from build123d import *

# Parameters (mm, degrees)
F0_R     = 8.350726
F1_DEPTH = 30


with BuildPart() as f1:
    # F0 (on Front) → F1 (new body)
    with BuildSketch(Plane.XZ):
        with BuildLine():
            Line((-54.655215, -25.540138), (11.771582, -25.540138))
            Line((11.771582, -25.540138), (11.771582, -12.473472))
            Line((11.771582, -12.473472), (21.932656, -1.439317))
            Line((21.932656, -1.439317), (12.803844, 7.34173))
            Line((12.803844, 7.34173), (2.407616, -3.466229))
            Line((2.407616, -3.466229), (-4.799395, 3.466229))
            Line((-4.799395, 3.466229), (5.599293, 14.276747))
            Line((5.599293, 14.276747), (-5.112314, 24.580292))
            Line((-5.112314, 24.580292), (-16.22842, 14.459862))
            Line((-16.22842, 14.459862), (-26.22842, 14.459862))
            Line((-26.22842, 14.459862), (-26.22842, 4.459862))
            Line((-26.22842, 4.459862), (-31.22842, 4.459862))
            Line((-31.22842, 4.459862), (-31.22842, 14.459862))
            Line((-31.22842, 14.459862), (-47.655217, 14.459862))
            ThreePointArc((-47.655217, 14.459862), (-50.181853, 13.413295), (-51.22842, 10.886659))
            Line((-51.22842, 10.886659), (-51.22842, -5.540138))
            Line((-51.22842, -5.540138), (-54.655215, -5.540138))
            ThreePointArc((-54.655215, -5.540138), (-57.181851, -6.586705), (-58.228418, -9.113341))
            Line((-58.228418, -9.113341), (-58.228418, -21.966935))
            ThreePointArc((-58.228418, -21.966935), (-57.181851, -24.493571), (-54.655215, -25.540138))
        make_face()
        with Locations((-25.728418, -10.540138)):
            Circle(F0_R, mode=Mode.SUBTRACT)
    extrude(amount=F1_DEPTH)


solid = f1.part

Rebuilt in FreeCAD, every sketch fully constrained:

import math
import FreeCAD as App
import Part
import Sketcher

doc = App.newDocument("Part")
body = doc.addObject("PartDesign::Body", "Body")

# Sketch on XZ plane
sketch1 = body.newObject("Sketcher::SketchObject", "Sketch")
sketch1.AttachmentSupport = (doc.getObject("XZ_Plane"), [""])
sketch1.MapMode = "FlatFace"
sketch1.addGeometry([
    Part.LineSegment(App.Vector(-54.655215, -25.540138, 0), App.Vector(11.771582, -25.540138, 0)),  # 0
    Part.LineSegment(App.Vector(11.771582, -25.540138, 0), App.Vector(11.771582, -12.473472, 0)),  # 1
    Part.LineSegment(App.Vector(11.771582, -12.473472, 0), App.Vector(21.932656, -1.439317, 0)),  # 2
    Part.LineSegment(App.Vector(21.932656, -1.439317, 0), App.Vector(12.803844, 7.34173, 0)),  # 3
    Part.LineSegment(App.Vector(12.803844, 7.34173, 0), App.Vector(2.407616, -3.466229, 0)),  # 4
    Part.LineSegment(App.Vector(2.407616, -3.466229, 0), App.Vector(-4.799395, 3.466229, 0)),  # 5
    Part.LineSegment(App.Vector(-4.799395, 3.466229, 0), App.Vector(5.599293, 14.276747, 0)),  # 6
    Part.LineSegment(App.Vector(5.599293, 14.276747, 0), App.Vector(-5.112314, 24.580292, 0)),  # 7
    Part.LineSegment(App.Vector(-5.112314, 24.580292, 0), App.Vector(-16.22842, 14.459862, 0)),  # 8
    Part.LineSegment(App.Vector(-16.22842, 14.459862, 0), App.Vector(-26.22842, 14.459862, 0)),  # 9
    Part.LineSegment(App.Vector(-26.22842, 14.459862, 0), App.Vector(-26.22842, 4.459862, 0)),  # 10
    Part.LineSegment(App.Vector(-26.22842, 4.459862, 0), App.Vector(-31.22842, 4.459862, 0)),  # 11
    Part.LineSegment(App.Vector(-31.22842, 4.459862, 0), App.Vector(-31.22842, 14.459862, 0)),  # 12
    Part.LineSegment(App.Vector(-31.22842, 14.459862, 0), App.Vector(-47.655217, 14.459862, 0)),  # 13
    Part.ArcOfCircle(Part.Circle(App.Vector(-47.655217, 10.886659, 0), App.Vector(0, 0, 1), 3.573203), math.radians(90.000004), math.radians(179.999996)),  # 14
    Part.LineSegment(App.Vector(-51.22842, 10.886659, 0), App.Vector(-51.22842, -5.540138, 0)),  # 15
    Part.LineSegment(App.Vector(-51.22842, -5.540138, 0), App.Vector(-54.655215, -5.540138, 0)),  # 16
    Part.ArcOfCircle(Part.Circle(App.Vector(-54.655215, -9.113341, 0), App.Vector(0, 0, 1), 3.573203), math.radians(90.000004), math.radians(179.999996)),  # 17
    Part.LineSegment(App.Vector(-58.228418, -9.113341, 0), App.Vector(-58.228418, -21.966935, 0)),  # 18
    Part.ArcOfCircle(Part.Circle(App.Vector(-54.655215, -21.966935, 0), App.Vector(0, 0, 1), 3.573203), math.radians(-179.999996), math.radians(-90.000004)),  # 19
    Part.Circle(App.Vector(-25.728418, -10.540138, 0), App.Vector(0, 0, 1), 8.350726),  # 20
], False)
sketch1.addConstraint([
    Sketcher.Constraint("Coincident", 0, 2, 1, 1),
    Sketcher.Constraint("Coincident", 1, 2, 2, 1),
    Sketcher.Constraint("Coincident", 2, 2, 3, 1),
    Sketcher.Constraint("Coincident", 3, 2, 4, 1),
    Sketcher.Constraint("Coincident", 4, 2, 5, 1),
    Sketcher.Constraint("Coincident", 5, 2, 6, 1),
    Sketcher.Constraint("Coincident", 6, 2, 7, 1),
    Sketcher.Constraint("Coincident", 7, 2, 8, 1),
    Sketcher.Constraint("Coincident", 8, 2, 9, 1),
    Sketcher.Constraint("Coincident", 9, 2, 10, 1),
    Sketcher.Constraint("Coincident", 10, 2, 11, 1),
    Sketcher.Constraint("Coincident", 11, 2, 12, 1),
    Sketcher.Constraint("Coincident", 12, 2, 13, 1),
    Sketcher.Constraint("Tangent", 13, 2, 14, 1),
    Sketcher.Constraint("Tangent", 14, 2, 15, 1),
    Sketcher.Constraint("Coincident", 15, 2, 16, 1),
    Sketcher.Constraint("Tangent", 16, 2, 17, 1),
    Sketcher.Constraint("Tangent", 17, 2, 18, 1),
    Sketcher.Constraint("Tangent", 18, 2, 19, 1),
    Sketcher.Constraint("Tangent", 19, 2, 0, 1),
    Sketcher.Constraint("Horizontal", 0),
    Sketcher.Constraint("Vertical", 1),
    Sketcher.Constraint("Horizontal", 9),
    Sketcher.Constraint("Vertical", 10),
    Sketcher.Constraint("Horizontal", 11),
    Sketcher.Constraint("Vertical", 12),
    Sketcher.Constraint("Horizontal", 13),
    Sketcher.Constraint("Vertical", 15),
    Sketcher.Constraint("Horizontal", 16),
    Sketcher.Constraint("Vertical", 18),
    Sketcher.Constraint("Equal", 14, 17),
    Sketcher.Constraint("Equal", 17, 19),
    Sketcher.Constraint("Perpendicular", 3, 4),
    Sketcher.Constraint("Perpendicular", 4, 5),
    Sketcher.Constraint("Perpendicular", 5, 6),
    Sketcher.Constraint("Perpendicular", 6, 7),
    Sketcher.Constraint("Horizontal", 9, 2, 12, 2),
    Sketcher.Constraint("Equal", 9, 10),
    Sketcher.Constraint("Equal", 13, 15),
    Sketcher.Constraint("Equal", 2, 6),
    Sketcher.Constraint("DistanceX", 9, 2, 9, 1, 10.0),
    Sketcher.Constraint("DistanceX", 11, 2, 11, 1, 5.0),
    Sketcher.Constraint("Distance", 2, 15.0),
    Sketcher.Constraint("Distance", 5, 9.999999),
    Sketcher.Constraint("DistanceX", 17, 3, 14, 3, 6.999998),
    Sketcher.Constraint("DistanceY", 17, 3, 14, 3, 20.0),
    Sketcher.Constraint("DistanceY", 0, 2, 20, 3, 15.0),
    Sketcher.Constraint("DistanceY", 20, 3, 8, 2, 25.0),
    Sketcher.Constraint("DistanceX", 20, 3, 0, 2, 37.5),
    Sketcher.Constraint("DistanceX", 20, 3, 8, 2, 9.499998),
    Sketcher.Constraint("Diameter", 20, 16.701452),
    Sketcher.Constraint("Radius", 14, 3.573203),
    Sketcher.Constraint("DistanceY", 1, 2, 3, 2, 19.815202),
    Sketcher.Constraint("DistanceY", 5, 2, 3, 2, 3.875501),
    Sketcher.Constraint("Distance", 3, 12.66657),
    Sketcher.Constraint("Distance", 4, 14.996451),
    Sketcher.Constraint("DistanceY", 1, 1, 1, 2, 13.066666),
    Sketcher.Constraint("DistanceY", -1, 1, 14, 3, 10.886659),
    Sketcher.Constraint("DistanceX", 20, 3, -1, 1, 25.728418),
    Sketcher.Constraint("DistanceY", -1, 1, 7, 2, 24.580292),
])
pad1 = body.newObject("PartDesign::Pad", "Pad")
pad1.Profile = sketch1
pad1.Length = 30

doc.recompute()
